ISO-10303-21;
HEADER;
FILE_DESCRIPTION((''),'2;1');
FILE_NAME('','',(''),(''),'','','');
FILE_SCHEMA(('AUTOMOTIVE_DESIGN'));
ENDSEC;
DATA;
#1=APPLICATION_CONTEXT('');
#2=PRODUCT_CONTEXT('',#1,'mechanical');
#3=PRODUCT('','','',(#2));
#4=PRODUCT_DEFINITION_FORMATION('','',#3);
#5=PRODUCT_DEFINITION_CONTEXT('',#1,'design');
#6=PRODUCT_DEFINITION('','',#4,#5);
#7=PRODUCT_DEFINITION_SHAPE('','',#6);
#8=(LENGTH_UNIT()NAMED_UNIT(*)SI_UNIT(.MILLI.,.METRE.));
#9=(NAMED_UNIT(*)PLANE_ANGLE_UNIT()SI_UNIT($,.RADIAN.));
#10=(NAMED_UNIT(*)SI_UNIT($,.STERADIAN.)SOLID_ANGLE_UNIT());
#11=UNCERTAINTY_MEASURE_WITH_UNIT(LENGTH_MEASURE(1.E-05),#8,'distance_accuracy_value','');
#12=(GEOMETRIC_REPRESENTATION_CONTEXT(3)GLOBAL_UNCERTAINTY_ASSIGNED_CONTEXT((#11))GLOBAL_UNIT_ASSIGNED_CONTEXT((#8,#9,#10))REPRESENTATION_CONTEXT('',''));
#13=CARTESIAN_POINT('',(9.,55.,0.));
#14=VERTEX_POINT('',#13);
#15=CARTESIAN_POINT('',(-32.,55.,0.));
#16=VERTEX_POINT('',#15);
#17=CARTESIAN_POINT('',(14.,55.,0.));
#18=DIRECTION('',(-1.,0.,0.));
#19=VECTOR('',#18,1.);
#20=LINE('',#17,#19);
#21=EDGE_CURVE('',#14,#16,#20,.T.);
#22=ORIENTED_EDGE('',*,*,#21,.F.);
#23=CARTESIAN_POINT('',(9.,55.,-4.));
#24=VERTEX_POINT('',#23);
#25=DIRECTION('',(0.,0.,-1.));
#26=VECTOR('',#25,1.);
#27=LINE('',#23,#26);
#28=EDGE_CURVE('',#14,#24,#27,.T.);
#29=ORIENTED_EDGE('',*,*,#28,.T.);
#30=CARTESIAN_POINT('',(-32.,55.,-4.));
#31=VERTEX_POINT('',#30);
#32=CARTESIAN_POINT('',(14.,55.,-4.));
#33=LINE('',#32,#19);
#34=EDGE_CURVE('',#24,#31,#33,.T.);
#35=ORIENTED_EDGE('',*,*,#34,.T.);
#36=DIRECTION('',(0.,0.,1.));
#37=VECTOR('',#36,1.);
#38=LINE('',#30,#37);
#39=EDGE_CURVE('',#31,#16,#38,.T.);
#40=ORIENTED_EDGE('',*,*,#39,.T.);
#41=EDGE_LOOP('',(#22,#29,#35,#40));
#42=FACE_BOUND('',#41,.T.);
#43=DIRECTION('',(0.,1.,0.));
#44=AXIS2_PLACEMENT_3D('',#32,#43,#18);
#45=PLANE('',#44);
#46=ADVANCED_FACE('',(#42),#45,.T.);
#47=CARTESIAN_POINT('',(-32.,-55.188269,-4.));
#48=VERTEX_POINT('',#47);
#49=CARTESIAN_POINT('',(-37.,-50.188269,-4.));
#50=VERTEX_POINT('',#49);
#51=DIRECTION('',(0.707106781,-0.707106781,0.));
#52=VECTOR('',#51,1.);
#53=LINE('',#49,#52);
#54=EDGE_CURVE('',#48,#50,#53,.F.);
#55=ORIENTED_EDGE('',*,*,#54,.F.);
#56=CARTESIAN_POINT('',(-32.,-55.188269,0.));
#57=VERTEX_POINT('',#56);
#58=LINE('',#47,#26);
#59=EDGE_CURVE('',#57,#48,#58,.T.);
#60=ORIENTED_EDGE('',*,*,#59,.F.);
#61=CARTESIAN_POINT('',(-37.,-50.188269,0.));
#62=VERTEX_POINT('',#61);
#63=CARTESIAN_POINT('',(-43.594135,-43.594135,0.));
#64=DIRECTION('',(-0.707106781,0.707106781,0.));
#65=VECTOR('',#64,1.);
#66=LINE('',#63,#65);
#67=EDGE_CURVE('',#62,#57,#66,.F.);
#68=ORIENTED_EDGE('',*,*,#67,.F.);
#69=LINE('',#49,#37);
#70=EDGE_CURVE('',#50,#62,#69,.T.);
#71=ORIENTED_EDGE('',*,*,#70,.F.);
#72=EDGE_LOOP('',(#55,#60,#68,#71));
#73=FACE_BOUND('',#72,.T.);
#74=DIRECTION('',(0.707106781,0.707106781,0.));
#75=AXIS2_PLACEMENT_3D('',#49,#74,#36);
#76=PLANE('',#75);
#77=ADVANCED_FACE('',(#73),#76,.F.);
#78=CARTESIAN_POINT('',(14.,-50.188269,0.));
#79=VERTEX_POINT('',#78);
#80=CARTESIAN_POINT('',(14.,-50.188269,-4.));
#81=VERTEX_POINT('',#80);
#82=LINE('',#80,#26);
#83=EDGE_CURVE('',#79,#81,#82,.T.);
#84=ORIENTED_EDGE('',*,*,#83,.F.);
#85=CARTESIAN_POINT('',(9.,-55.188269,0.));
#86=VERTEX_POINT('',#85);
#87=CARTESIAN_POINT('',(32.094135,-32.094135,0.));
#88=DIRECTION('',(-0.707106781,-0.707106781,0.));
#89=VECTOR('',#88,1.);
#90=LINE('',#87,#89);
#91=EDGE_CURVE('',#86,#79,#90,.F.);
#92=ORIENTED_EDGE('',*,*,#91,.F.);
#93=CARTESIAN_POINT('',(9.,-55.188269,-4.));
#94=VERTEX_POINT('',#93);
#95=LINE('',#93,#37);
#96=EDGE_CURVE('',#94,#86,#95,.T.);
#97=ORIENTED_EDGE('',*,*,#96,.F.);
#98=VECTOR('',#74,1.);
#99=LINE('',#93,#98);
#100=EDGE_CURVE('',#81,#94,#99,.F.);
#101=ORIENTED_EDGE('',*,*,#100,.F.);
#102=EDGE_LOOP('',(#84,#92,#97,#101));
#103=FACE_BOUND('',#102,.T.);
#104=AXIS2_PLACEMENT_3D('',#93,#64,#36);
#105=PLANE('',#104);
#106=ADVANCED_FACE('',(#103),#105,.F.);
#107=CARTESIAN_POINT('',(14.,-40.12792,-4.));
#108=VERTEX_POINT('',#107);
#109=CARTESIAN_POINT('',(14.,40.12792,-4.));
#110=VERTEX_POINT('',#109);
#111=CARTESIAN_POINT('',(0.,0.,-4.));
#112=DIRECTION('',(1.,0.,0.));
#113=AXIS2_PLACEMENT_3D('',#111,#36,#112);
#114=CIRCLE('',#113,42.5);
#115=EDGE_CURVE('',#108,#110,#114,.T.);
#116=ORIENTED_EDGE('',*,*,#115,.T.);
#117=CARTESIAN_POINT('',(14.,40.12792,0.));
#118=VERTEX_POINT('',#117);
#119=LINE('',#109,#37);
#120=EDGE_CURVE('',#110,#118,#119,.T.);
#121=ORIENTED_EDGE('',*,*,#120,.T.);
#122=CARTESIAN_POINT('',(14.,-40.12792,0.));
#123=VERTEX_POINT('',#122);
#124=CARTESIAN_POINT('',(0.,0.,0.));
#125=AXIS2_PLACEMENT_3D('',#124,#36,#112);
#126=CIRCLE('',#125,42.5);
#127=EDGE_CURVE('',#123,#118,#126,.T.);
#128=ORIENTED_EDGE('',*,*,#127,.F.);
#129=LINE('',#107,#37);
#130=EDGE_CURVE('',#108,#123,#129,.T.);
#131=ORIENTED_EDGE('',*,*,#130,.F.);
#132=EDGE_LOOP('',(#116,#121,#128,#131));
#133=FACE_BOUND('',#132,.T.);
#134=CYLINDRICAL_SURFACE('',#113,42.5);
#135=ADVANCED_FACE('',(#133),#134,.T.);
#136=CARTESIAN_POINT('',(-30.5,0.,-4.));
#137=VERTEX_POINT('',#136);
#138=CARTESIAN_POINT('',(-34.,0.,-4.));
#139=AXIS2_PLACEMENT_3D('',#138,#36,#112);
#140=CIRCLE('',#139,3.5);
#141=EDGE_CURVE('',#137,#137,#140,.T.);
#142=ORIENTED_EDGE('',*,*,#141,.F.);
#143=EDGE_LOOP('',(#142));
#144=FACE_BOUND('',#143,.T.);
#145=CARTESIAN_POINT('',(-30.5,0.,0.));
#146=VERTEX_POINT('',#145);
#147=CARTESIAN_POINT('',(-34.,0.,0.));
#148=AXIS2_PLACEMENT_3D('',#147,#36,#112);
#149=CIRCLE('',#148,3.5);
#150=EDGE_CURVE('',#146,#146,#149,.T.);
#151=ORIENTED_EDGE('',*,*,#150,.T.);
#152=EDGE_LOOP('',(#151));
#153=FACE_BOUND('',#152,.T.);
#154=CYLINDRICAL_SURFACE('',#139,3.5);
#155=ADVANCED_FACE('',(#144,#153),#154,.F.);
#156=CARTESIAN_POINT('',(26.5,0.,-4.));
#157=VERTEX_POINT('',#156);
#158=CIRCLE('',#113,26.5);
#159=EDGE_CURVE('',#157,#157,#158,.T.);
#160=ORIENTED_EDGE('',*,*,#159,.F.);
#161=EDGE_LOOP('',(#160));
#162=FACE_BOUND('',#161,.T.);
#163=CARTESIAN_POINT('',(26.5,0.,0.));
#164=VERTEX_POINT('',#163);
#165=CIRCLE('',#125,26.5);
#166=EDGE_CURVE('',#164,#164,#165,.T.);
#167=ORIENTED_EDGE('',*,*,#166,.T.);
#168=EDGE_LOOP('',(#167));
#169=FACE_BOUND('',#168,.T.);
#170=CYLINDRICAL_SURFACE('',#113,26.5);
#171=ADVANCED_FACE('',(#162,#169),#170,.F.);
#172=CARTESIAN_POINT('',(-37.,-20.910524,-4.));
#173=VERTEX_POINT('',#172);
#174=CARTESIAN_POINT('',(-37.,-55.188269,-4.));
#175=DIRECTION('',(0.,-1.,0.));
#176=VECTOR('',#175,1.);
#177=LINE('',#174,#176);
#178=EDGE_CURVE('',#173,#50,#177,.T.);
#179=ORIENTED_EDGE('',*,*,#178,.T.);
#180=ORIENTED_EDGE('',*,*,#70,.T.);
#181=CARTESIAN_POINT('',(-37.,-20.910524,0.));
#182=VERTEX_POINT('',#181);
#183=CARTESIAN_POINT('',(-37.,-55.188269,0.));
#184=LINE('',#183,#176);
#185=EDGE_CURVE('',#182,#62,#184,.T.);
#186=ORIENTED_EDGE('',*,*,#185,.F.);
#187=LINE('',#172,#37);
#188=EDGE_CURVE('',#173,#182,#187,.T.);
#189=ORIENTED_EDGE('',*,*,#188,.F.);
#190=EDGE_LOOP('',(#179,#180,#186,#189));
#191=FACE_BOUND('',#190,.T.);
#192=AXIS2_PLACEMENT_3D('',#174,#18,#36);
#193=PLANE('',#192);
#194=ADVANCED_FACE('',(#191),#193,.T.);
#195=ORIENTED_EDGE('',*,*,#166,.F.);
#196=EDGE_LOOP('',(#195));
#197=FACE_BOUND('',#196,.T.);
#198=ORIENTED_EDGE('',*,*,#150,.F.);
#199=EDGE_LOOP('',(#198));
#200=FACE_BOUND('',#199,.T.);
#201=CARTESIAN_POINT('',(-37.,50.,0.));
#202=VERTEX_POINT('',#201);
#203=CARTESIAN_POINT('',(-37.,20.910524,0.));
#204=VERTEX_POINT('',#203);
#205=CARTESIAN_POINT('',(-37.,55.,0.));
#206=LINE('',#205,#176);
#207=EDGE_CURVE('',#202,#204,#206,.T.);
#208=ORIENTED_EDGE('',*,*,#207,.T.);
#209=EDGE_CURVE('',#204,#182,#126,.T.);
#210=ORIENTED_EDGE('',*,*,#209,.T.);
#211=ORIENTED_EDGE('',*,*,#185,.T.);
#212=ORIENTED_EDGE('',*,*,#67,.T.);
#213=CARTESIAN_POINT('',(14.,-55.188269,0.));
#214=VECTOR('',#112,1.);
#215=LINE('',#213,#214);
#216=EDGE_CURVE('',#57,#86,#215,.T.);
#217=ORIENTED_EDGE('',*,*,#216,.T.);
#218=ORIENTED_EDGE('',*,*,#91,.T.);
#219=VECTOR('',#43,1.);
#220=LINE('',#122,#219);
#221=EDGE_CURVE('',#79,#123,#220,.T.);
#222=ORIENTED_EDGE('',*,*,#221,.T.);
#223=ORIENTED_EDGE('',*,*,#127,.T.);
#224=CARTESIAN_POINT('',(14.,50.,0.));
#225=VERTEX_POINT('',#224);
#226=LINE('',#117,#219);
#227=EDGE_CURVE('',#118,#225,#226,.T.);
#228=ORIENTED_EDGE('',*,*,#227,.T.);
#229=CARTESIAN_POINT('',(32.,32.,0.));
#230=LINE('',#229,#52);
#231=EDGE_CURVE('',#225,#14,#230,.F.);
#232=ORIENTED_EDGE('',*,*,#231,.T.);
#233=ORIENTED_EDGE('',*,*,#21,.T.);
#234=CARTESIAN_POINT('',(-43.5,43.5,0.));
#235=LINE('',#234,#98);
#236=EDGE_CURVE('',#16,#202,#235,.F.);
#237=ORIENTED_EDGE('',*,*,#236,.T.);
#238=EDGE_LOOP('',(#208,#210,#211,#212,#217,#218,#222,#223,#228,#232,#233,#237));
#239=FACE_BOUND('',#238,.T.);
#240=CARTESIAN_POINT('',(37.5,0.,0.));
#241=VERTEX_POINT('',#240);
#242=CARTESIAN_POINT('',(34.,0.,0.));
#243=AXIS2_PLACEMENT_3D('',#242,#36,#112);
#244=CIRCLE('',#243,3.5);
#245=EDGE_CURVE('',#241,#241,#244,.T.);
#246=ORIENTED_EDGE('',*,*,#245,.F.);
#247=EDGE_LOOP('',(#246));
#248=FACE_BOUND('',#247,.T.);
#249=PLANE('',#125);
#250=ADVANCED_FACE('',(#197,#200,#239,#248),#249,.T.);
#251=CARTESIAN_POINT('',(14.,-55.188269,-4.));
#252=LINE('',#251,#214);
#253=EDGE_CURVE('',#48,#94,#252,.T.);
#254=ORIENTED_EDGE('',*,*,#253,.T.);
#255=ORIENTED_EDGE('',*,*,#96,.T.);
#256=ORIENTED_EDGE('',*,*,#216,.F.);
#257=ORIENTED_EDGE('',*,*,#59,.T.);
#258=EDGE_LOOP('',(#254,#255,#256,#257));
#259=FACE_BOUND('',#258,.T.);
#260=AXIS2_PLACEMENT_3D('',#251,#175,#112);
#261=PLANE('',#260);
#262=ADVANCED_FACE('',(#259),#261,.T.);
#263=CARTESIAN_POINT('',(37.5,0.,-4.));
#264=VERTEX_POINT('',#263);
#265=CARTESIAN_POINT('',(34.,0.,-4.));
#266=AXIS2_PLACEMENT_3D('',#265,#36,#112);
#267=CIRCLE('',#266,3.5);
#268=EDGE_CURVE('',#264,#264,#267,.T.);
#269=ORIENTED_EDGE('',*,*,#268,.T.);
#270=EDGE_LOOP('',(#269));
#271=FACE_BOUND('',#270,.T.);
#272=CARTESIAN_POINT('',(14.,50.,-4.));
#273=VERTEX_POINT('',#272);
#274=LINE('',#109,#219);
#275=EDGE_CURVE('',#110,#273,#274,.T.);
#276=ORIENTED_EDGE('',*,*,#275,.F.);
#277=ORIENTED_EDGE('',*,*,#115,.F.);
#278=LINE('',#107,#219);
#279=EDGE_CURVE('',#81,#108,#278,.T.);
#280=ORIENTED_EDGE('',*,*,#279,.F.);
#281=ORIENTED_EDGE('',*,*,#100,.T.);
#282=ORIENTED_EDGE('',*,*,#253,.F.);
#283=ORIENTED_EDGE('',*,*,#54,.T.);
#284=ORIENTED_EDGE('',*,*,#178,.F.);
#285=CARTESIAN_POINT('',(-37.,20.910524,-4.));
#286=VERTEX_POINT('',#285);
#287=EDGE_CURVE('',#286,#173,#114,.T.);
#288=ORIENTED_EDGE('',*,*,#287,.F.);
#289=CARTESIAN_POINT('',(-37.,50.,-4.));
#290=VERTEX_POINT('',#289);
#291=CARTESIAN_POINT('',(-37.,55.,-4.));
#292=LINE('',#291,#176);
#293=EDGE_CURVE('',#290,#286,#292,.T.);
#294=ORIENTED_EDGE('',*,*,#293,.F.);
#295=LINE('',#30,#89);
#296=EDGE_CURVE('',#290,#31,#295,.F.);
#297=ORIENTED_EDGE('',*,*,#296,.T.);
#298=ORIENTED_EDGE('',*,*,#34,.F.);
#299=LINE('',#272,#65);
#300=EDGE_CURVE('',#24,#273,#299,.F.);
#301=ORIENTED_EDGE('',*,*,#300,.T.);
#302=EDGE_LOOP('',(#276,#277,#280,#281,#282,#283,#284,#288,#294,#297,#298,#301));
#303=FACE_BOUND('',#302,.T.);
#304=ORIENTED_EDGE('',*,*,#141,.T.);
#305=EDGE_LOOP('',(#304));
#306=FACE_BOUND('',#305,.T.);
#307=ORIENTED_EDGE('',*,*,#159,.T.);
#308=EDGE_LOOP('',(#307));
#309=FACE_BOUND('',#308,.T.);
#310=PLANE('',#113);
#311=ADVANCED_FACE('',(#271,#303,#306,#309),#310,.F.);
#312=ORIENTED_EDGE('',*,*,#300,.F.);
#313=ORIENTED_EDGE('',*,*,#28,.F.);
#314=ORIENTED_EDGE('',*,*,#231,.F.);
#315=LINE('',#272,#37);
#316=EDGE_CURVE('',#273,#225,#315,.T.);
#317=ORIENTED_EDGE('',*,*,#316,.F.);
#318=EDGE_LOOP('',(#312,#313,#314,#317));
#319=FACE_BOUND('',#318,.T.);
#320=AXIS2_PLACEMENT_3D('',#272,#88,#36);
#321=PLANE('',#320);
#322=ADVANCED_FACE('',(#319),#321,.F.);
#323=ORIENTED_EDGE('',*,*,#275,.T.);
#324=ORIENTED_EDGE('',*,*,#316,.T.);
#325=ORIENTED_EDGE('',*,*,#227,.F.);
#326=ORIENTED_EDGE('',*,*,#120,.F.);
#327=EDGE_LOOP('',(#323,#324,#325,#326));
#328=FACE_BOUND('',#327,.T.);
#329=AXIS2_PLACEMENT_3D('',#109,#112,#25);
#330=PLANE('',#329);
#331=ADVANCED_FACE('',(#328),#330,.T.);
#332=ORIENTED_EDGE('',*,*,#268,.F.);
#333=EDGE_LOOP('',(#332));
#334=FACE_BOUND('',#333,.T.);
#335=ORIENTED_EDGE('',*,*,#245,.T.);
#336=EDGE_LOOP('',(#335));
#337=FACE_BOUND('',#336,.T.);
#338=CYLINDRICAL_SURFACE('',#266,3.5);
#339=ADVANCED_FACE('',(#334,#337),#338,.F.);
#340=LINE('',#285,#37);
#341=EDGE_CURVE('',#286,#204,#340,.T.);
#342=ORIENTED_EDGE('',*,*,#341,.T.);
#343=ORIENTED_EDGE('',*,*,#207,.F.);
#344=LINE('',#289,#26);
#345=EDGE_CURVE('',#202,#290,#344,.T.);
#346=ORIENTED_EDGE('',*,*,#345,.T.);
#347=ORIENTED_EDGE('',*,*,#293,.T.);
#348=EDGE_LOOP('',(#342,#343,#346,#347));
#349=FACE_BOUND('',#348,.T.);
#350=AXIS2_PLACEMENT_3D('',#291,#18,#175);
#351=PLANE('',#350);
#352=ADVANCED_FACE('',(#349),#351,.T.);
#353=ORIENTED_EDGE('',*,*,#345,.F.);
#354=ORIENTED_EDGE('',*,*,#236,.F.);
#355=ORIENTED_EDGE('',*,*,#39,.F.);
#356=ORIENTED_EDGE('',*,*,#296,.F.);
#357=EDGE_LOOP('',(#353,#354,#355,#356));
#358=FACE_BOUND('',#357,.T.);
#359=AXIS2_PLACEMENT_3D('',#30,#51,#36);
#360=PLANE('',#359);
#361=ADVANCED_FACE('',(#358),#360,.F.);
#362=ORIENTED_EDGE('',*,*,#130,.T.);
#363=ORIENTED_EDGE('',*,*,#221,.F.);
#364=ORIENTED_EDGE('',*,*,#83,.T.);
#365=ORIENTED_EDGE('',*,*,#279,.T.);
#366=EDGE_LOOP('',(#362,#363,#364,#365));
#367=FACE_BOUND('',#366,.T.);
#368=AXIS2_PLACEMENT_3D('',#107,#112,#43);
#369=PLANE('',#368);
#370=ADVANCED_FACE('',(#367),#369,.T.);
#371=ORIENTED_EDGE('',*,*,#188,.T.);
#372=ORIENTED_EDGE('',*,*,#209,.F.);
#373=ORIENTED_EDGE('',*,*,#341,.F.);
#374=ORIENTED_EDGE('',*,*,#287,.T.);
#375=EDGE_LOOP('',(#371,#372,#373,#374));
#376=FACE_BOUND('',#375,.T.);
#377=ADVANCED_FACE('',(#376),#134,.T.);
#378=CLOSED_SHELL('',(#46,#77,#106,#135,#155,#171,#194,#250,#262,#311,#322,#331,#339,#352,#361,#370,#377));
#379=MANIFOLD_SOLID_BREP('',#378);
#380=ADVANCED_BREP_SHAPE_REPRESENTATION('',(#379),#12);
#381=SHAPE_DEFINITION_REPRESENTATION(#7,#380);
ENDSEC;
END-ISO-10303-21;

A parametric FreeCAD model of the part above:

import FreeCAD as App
import Part
import Sketcher
from FreeCAD import Vector


def edges_at(feature, points):
    """Names of the edges that pass closest to the given points."""
    edges = feature.Shape.Edges
    near = lambda p: min(range(len(edges)), key=lambda i: edges[i].distToShape(Part.Vertex(*p))[0])
    return sorted({f"Edge{near(p) + 1}" for p in points})


def add_polygon(sketch, points):
    """Adds a closed chain of lines whose ends are joined by coincident constraints."""
    first, n = sketch.GeometryCount, len(points)
    for a, b in zip(points, points[1:] + points[:1]):
        sketch.addGeometry(Part.LineSegment(App.Vector(*a, 0), App.Vector(*b, 0)), False)
    for i in range(n):
        sketch.addConstraint(Sketcher.Constraint("Coincident", first + i, 2, first + (i + 1) % n, 1))

doc = App.newDocument("Part")
body = doc.addObject("PartDesign::Body", "Body")

sketch1 = body.newObject("Sketcher::SketchObject", "Sketch")
sketch1.AttachmentSupport = (doc.getObject("XY_Plane"), [""])
sketch1.MapMode = "FlatFace"
sketch1.addGeometry([
    Part.Circle(Vector(0, 0, 0), Vector(0, 0, 1), 42.5),
    Part.Circle(Vector(-34, 0, 0), Vector(0, 0, 1), 3.5),
    Part.Circle(Vector(0, 0, 0), Vector(0, 0, 1), 26.5),
    Part.Circle(Vector(34, 0, 0), Vector(0, 0, 1), 3.5),
], False)
sketch1.addConstraint([
    Sketcher.Constraint("Coincident", 0, 3, -1, 1),
    Sketcher.Constraint("Coincident", 2, 3, -1, 1),
    Sketcher.Constraint("Equal", 1, 3),
    Sketcher.Constraint("Symmetric", 1, 3, 3, 3, -1, 1),
    Sketcher.Constraint("PointOnObject", 1, 3, -1),
    Sketcher.Constraint("Diameter", 0, 85.0),
    Sketcher.Constraint("Diameter", 1, 7.0),
    Sketcher.Constraint("Diameter", 2, 53.0),
    Sketcher.Constraint("DistanceX", 1, 3, -1, 1, 34.0),
])
pad1 = body.newObject("PartDesign::Pad", "Pad")
pad1.Profile = sketch1
pad1.Length = 4
pad1.Reversed = True

sketch2 = body.newObject("Sketcher::SketchObject", "Sketch001")
sketch2.AttachmentSupport = (doc.getObject("XY_Plane"), [""])
sketch2.MapMode = "FlatFace"
add_polygon(sketch2, [(-37, 55), (-37, 21), (14, 40), (14, 55)])
add_polygon(sketch2, [(-37, -21), (-37, -55), (14, -55), (14, -40)])
sketch2.addConstraint([
    Sketcher.Constraint("Vertical", 0),
    Sketcher.Constraint("Vertical", 2),
    Sketcher.Constraint("Horizontal", 3),
    Sketcher.Constraint("Vertical", 4),
    Sketcher.Constraint("Horizontal", 5),
    Sketcher.Constraint("Vertical", 6),
    Sketcher.Constraint("Symmetric", 1, 2, 6, 2, -1),
    Sketcher.Constraint("Symmetric", 0, 2, 7, 2, -1),
    Sketcher.Constraint("DistanceX", 3, 2, 3, 1, 51.0),
    Sketcher.Constraint("DistanceX", 0, 2, -1, 1, 37.0),
    Sketcher.Constraint("DistanceY", -1, 1, 2, 2, 55.0),
    Sketcher.Constraint("DistanceY", 2, 1, 2, 2, 14.87208),
    Sketcher.Constraint("DistanceY", 6, 1, 6, 2, 15.060349),
    Sketcher.Constraint("DistanceY", 0, 2, 0, 1, 34.089476),
])
pad2 = body.newObject("PartDesign::Pad", "Pad001")
pad2.Profile = sketch2
pad2.Length = 4
pad2.Reversed = True
doc.recompute()

chamfer = body.newObject("PartDesign::Chamfer", "Chamfer")
chamfer.Base = (pad2, edges_at(pad2, [
    (-37, 55, -2),
    (14, 55, -2),
    (14, -55.188, -2),
    (-37, -55.188, -2),
]))
chamfer.Size = 5

doc.recompute()
